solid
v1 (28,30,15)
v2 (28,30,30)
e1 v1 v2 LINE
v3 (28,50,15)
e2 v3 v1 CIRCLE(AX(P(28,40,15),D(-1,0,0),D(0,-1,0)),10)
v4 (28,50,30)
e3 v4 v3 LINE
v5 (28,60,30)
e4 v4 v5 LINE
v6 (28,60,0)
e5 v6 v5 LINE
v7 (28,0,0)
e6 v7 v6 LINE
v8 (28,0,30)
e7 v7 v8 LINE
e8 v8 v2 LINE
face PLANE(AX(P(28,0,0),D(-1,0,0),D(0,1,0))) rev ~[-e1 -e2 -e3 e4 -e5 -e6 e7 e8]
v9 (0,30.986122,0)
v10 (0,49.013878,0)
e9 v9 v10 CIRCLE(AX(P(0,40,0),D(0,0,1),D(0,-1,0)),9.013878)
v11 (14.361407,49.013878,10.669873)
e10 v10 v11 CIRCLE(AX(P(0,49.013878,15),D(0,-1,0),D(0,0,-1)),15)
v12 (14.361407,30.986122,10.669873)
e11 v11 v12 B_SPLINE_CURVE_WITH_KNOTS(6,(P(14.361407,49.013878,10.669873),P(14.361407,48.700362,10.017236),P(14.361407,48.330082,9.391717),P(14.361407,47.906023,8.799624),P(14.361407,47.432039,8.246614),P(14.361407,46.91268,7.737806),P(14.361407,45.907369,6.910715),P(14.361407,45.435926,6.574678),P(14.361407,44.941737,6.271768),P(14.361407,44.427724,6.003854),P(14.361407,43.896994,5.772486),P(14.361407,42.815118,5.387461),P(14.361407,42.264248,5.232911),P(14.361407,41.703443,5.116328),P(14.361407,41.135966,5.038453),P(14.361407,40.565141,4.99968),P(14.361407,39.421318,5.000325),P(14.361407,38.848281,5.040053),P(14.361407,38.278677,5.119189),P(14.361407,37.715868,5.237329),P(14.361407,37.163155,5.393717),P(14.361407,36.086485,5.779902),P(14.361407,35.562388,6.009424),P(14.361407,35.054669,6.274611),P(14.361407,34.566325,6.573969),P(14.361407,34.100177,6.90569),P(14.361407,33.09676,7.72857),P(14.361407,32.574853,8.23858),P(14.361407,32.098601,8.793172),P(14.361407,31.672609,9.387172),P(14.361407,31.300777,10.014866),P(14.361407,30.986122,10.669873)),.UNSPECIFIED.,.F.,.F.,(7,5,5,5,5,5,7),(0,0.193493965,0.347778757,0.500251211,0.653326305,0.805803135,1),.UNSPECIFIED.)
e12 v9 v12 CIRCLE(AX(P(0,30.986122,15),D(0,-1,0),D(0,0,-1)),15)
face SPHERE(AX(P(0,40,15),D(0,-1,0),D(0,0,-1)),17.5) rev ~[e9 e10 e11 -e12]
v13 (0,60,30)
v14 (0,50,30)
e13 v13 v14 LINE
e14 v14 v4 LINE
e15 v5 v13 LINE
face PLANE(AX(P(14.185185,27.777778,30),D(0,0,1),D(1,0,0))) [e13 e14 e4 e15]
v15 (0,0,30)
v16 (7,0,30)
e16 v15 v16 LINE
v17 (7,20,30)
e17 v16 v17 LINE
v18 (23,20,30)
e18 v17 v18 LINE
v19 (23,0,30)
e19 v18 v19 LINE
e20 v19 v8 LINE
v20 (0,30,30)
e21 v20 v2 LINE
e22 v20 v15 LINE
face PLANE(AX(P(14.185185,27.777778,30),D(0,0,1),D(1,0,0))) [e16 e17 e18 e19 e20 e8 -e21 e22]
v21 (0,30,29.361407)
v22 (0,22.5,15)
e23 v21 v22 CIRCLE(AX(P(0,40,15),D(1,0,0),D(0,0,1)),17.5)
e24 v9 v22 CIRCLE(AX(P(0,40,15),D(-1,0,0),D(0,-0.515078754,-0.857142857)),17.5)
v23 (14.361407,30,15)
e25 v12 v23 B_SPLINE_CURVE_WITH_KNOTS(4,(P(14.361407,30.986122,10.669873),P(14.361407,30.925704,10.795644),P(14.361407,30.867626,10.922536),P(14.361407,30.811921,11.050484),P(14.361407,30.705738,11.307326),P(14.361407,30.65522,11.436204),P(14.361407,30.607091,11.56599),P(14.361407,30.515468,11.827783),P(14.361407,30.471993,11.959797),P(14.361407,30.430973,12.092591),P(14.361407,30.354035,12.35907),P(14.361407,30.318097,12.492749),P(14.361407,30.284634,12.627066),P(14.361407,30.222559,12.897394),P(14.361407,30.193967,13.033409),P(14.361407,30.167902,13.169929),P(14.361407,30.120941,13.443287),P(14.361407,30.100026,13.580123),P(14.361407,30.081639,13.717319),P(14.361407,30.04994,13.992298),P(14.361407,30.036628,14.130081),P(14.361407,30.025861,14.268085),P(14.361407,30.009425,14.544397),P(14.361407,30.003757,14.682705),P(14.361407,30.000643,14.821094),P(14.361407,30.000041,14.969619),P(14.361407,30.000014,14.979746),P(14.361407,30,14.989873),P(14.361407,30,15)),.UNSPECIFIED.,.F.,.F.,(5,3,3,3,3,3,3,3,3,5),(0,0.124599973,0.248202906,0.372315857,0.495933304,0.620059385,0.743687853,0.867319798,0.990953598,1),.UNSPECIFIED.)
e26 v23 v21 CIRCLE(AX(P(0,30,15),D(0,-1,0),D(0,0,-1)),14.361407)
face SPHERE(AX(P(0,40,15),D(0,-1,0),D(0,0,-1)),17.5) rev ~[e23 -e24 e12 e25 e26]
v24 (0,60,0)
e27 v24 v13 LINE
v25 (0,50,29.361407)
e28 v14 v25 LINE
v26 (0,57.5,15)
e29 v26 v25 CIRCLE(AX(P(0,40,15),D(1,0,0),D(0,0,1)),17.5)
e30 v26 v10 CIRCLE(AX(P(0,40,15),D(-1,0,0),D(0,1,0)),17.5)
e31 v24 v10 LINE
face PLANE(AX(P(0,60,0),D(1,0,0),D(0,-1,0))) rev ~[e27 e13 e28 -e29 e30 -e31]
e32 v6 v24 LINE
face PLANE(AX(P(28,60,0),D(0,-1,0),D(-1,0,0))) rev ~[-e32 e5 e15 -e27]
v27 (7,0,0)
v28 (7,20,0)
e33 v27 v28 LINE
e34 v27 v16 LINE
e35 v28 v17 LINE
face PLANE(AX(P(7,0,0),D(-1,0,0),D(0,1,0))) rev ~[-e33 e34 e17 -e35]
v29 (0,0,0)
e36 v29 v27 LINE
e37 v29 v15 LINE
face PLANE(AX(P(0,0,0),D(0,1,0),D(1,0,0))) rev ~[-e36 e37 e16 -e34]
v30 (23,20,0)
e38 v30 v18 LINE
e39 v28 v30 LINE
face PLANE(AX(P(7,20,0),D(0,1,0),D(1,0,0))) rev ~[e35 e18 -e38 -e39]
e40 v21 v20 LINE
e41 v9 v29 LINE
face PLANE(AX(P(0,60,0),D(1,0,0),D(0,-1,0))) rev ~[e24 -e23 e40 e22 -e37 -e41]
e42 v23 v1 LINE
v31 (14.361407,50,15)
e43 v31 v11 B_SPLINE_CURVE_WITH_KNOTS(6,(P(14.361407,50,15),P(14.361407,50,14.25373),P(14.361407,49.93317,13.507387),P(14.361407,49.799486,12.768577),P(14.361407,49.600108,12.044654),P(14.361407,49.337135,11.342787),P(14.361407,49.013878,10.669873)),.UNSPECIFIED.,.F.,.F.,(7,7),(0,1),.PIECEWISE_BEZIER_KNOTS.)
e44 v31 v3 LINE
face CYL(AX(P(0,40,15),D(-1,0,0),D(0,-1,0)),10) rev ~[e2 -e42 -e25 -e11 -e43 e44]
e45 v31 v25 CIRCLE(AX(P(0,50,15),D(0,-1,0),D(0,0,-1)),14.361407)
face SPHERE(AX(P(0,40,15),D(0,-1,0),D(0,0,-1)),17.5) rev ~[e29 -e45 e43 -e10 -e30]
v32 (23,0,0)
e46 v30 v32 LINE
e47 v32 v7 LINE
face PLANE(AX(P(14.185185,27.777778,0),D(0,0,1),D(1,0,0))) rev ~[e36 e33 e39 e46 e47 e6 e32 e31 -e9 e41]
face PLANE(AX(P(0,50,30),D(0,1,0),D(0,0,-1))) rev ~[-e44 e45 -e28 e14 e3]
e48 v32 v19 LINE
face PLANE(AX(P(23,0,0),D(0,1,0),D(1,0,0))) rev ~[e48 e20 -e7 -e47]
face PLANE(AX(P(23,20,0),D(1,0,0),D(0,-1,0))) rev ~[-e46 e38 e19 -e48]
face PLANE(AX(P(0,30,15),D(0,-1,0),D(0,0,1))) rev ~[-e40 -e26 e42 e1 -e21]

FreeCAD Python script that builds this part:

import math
import FreeCAD as App
import Part
import Sketcher
Q = App.Units.Quantity


def add_polygon(sketch, points):
    """Adds a closed chain of lines whose ends are joined by coincident constraints."""
    first, n = sketch.GeometryCount, len(points)
    for a, b in zip(points, points[1:] + points[:1]):
        sketch.addGeometry(Part.LineSegment(App.Vector(*a, 0), App.Vector(*b, 0)), False)
    for i in range(n):
        sketch.addConstraint(Sketcher.Constraint("Coincident", first + i, 2, first + (i + 1) % n, 1))

doc = App.newDocument("Part")
body = doc.addObject("PartDesign::Body", "Body")

# Sketch on XY plane
sketch1 = body.newObject("Sketcher::SketchObject", "Sketch")
sketch1.AttachmentSupport = (doc.getObject("XY_Plane"), [""])
sketch1.MapMode = "FlatFace"
add_polygon(sketch1, [(0, 60), (0, 0), (7, 0), (7, 20), (23, 20), (23, 0), (28, 0), (28, 60)])  # lines 0-7
sketch1.addConstraint([
    Sketcher.Constraint("Vertical", 0),
    Sketcher.Constraint("Horizontal", 1),
    Sketcher.Constraint("Vertical", 2),
    Sketcher.Constraint("Horizontal", 3),
    Sketcher.Constraint("Vertical", 4),
    Sketcher.Constraint("Horizontal", 5),
    Sketcher.Constraint("Vertical", 6),
    Sketcher.Constraint("Horizontal", 7),
    Sketcher.Constraint("Coincident", 0, 2, -1, 1),
    Sketcher.Constraint("PointOnObject", 4, 2, -1),
    Sketcher.Constraint("DistanceX", 1, 1, 1, 2, Q("7 mm")),
    Sketcher.Constraint("DistanceX", 3, 1, 3, 2, Q("16 mm")),
    Sketcher.Constraint("DistanceX", 5, 1, 5, 2, Q("5 mm")),
    Sketcher.Constraint("DistanceY", 0, 2, 0, 1, Q("60 mm")),
    Sketcher.Constraint("DistanceY", 2, 1, 2, 2, Q("20 mm")),
])
pad1 = body.newObject("PartDesign::Pad", "Pad")
pad1.Profile = sketch1
pad1.Length = 30

# Sketch on YZ plane
sketch2 = body.newObject("Sketcher::SketchObject", "Sketch001")
sketch2.AttachmentSupport = (doc.getObject("YZ_Plane"), [""])
sketch2.MapMode = "FlatFace"
sketch2.addGeometry([
    Part.ArcOfCircle(Part.Circle(App.Vector(40, 15, 0), App.Vector(0, 0, 1), 10), math.radians(180), math.radians(360)),
    Part.LineSegment(App.Vector(30, 15, 0), App.Vector(30, 30, 0)),
    Part.LineSegment(App.Vector(30, 30, 0), App.Vector(50, 30, 0)),
    Part.LineSegment(App.Vector(50, 30, 0), App.Vector(50, 15, 0)),
], False)
sketch2.addConstraint([
    Sketcher.Constraint("Tangent", 0, 1, 1, 1),
    Sketcher.Constraint("Coincident", 1, 2, 2, 1),
    Sketcher.Constraint("Coincident", 2, 2, 3, 1),
    Sketcher.Constraint("Tangent", 3, 2, 0, 2),
    Sketcher.Constraint("Vertical", 1),
    Sketcher.Constraint("Horizontal", 2),
    Sketcher.Constraint("Vertical", 3),
    Sketcher.Constraint("Radius", 0, Q("10 mm")),
    Sketcher.Constraint("DistanceY", 1, 1, 1, 2, Q("15 mm")),
    Sketcher.Constraint("DistanceX", -1, 1, 0, 3, Q("40 mm")),
    Sketcher.Constraint("DistanceY", -1, 1, 0, 3, Q("15 mm")),
])
pocket1 = body.newObject("PartDesign::Pocket", "Pocket")
pocket1.Profile = sketch2
pocket1.Type = "ThroughAll"
pocket1.Reversed = True

# Sketch on YZ plane
sketch3 = body.newObject("Sketcher::SketchObject", "Sketch002")
sketch3.AttachmentSupport = (doc.getObject("YZ_Plane"), [""])
sketch3.MapMode = "FlatFace"
sketch3.addGeometry([
    Part.ArcOfCircle(Part.Circle(App.Vector(40, 15, 0), App.Vector(0, 0, 1), 18), math.radians(-59), math.radians(0)),
    Part.ArcOfCircle(Part.Circle(App.Vector(40, 15, 0), App.Vector(0, 0, 1), 18), math.radians(-121), math.radians(-59)),
    Part.ArcOfCircle(Part.Circle(App.Vector(40, 15, 0), App.Vector(0, 0, 1), 18), math.radians(180), math.radians(239)),
    Part.LineSegment(App.Vector(22, 15, 0), App.Vector(58, 15, 0)),
], False)
sketch3.addGeometry(Part.LineSegment(App.Vector(58, 15, 0), App.Vector(22, 15, 0)), True)  # axis
sketch3.addConstraint([
    Sketcher.Constraint("Tangent", 0, 1, 1, 2),
    Sketcher.Constraint("Tangent", 1, 1, 2, 2),
    Sketcher.Constraint("Coincident", 2, 1, 3, 1),
    Sketcher.Constraint("Coincident", 3, 2, 0, 2),
    Sketcher.Constraint("Horizontal", 3),
    Sketcher.Constraint("Horizontal", 4),
    Sketcher.Constraint("Coincident", 2, 3, 0, 3),
    Sketcher.Constraint("Coincident", 4, 1, 3, 2),
    Sketcher.Constraint("PointOnObject", 0, 1, -1),
    Sketcher.Constraint("PointOnObject", 1, 1, -1),
    Sketcher.Constraint("Horizontal", 1, 3, 2, 1),
    Sketcher.Constraint("Equal", 3, 4),
    Sketcher.Constraint("Radius", 0, Q("17.5 mm")),
    Sketcher.Constraint("DistanceX", -1, 1, 0, 3, Q("40 mm")),
    Sketcher.Constraint("DistanceY", -1, 1, 0, 3, Q("15 mm")),
])
groove = body.newObject("PartDesign::Groove", "Groove")
groove.Profile = sketch3
groove.ReferenceAxis = (sketch3, ["Axis0"])
groove.Angle = 360

doc.recompute()
